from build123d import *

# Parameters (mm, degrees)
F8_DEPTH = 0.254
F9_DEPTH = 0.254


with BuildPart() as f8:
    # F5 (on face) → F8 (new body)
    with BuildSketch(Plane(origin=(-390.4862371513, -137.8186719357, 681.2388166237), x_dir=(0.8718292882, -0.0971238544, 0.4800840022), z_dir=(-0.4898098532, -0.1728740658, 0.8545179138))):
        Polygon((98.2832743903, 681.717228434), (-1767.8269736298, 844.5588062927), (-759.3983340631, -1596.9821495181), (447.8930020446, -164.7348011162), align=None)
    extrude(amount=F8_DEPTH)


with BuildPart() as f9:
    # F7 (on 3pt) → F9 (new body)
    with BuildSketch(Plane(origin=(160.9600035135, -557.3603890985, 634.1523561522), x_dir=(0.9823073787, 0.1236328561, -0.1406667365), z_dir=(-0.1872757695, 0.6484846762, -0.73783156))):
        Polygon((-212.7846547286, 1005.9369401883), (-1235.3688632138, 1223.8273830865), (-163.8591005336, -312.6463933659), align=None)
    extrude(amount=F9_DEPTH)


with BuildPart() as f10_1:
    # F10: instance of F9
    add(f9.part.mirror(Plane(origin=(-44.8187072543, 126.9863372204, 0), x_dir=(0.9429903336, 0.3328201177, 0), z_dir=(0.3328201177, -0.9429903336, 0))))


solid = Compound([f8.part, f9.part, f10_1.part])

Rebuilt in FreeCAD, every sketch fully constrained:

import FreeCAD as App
import Part
import Sketcher

V = App.Vector
Q = App.Units.Quantity

doc = App.newDocument("Part")
params = doc.addObject("Spreadsheet::Sheet", "Params")
for row, (alias, value) in enumerate([
    ("sketch1_length", "104 in"),
    ("pad1_length", "0.01 in"),
    ("pad2_length", "0.01 in"),
], start=1):
    params.set(f"A{row}", alias)
    params.set(f"B{row}", "=" + value)
    params.setAlias(f"B{row}", alias)

body = doc.addObject("PartDesign::Body", "Body")

# Sketch on an angled plane
sketch1 = body.newObject("Sketcher::SketchObject", "Sketch")
sketch1.Placement = App.Placement(V(-390.486237, -137.818672, 681.238817), App.Rotation(V(0.871829288, -0.097123854, 0.480084002), V(0, 0.980143619, 0.198288895), V(-0.489809853, -0.172874066, 0.854517914), "ZXY"))
sketch1.addGeometry(Part.LineSegment(V(98.283274, 681.717228, 0), V(-1767.826973, 844.558806, 0)), False)
sketch1.addGeometry(Part.LineSegment(V(-1767.826973, 844.558806, 0), V(-759.398334, -1596.982149, 0)), False)
sketch1.addGeometry(Part.LineSegment(V(-759.398334, -1596.982149, 0), V(447.893002, -164.734801, 0)), False)
sketch1.addGeometry(Part.LineSegment(V(447.893002, -164.734801, 0), V(98.283274, 681.717228, 0)), False)
sketch1.addConstraint(Sketcher.Constraint("Coincident", 0, 2, 1, 1))
sketch1.addConstraint(Sketcher.Constraint("Coincident", 1, 2, 2, 1))
sketch1.addConstraint(Sketcher.Constraint("Coincident", 2, 2, 3, 1))
sketch1.addConstraint(Sketcher.Constraint("Coincident", 3, 2, 0, 1))
sketch1.addConstraint(Sketcher.Constraint("Parallel", 1, 3))
sketch1.addConstraint(Sketcher.Constraint("Equal", 0, 2))
sketch1.addConstraint(Sketcher.Constraint("Distance", 1, Q("104 in")))
sketch1.addConstraint(Sketcher.Constraint("DistanceX", -1, 1, 2, 2, 447.893002))
sketch1.addConstraint(Sketcher.Constraint("DistanceY", 2, 2, -1, 1, 164.734801))
sketch1.addConstraint(Sketcher.Constraint("Distance", 0, 1873.20176))
sketch1.addConstraint(Sketcher.Constraint("DistanceY", 1, 2, -1, 1, 1596.982149))
sketch1.addConstraint(Sketcher.Constraint("DistanceY", -1, 1, 3, 2, 681.717228))
sketch1.setExpression("Constraints[6]", "Params.sketch1_length")
pad1 = body.newObject("PartDesign::Pad", "Pad")
pad1.Profile = sketch1
pad1.setExpression("Length", "Params.pad1_length")
body2 = doc.addObject("PartDesign::Body", "Body001")

# Sketch on an angled plane
sketch2 = body2.newObject("Sketcher::SketchObject", "Sketch001")
sketch2.Placement = App.Placement(V(160.960004, -557.360389, 634.152356), App.Rotation(V(0.982307379, 0.123632856, -0.140666736), V(0, -0.751120857, -0.660164721), V(-0.187275769, 0.648484676, -0.73783156), "ZXY"))
sketch2.addGeometry(Part.LineSegment(V(-212.784655, 1005.93694, 0), V(-1235.368864, 1223.827383, 0)), False)
sketch2.addGeometry(Part.LineSegment(V(-1235.368864, 1223.827383, 0), V(-163.859101, -312.646393, 0)), False)
sketch2.addGeometry(Part.LineSegment(V(-163.859101, -312.646393, 0), V(-212.784655, 1005.93694, 0)), False)
sketch2.addConstraint(Sketcher.Constraint("Coincident", 0, 2, 1, 1))
sketch2.addConstraint(Sketcher.Constraint("Coincident", 1, 2, 2, 1))
sketch2.addConstraint(Sketcher.Constraint("Coincident", 2, 2, 0, 1))
sketch2.addConstraint(Sketcher.Constraint("DistanceX", 1, 2, -1, 1, 163.859101))
sketch2.addConstraint(Sketcher.Constraint("Distance", 0, 1045.540391))
sketch2.addConstraint(Sketcher.Constraint("Distance", 1, 1873.201761))
sketch2.addConstraint(Sketcher.Constraint("DistanceY", -1, 1, 2, 2, 1005.93694))
sketch2.addConstraint(Sketcher.Constraint("DistanceX", 0, 2, 2, 2, 1022.584209))
sketch2.addConstraint(Sketcher.Constraint("Distance", 2, 1319.490704))
pad2 = body2.newObject("PartDesign::Pad", "Pad001")
pad2.Profile = sketch2
pad2.setExpression("Length", "Params.pad2_length")
body3 = doc.addObject("PartDesign::Body", "Body002")
doc.recompute()

mirroring = doc.addObject("Part::Mirroring", "Mirroring")
mirroring.Source = body2
mirroring.Base = V(-44.818707, 126.986337, 0)
mirroring.Normal = V(0.332820118, -0.942990334, 0)
body3.BaseFeature = mirroring
doc.recompute()
mirroring.Visibility = False

doc.recompute()
